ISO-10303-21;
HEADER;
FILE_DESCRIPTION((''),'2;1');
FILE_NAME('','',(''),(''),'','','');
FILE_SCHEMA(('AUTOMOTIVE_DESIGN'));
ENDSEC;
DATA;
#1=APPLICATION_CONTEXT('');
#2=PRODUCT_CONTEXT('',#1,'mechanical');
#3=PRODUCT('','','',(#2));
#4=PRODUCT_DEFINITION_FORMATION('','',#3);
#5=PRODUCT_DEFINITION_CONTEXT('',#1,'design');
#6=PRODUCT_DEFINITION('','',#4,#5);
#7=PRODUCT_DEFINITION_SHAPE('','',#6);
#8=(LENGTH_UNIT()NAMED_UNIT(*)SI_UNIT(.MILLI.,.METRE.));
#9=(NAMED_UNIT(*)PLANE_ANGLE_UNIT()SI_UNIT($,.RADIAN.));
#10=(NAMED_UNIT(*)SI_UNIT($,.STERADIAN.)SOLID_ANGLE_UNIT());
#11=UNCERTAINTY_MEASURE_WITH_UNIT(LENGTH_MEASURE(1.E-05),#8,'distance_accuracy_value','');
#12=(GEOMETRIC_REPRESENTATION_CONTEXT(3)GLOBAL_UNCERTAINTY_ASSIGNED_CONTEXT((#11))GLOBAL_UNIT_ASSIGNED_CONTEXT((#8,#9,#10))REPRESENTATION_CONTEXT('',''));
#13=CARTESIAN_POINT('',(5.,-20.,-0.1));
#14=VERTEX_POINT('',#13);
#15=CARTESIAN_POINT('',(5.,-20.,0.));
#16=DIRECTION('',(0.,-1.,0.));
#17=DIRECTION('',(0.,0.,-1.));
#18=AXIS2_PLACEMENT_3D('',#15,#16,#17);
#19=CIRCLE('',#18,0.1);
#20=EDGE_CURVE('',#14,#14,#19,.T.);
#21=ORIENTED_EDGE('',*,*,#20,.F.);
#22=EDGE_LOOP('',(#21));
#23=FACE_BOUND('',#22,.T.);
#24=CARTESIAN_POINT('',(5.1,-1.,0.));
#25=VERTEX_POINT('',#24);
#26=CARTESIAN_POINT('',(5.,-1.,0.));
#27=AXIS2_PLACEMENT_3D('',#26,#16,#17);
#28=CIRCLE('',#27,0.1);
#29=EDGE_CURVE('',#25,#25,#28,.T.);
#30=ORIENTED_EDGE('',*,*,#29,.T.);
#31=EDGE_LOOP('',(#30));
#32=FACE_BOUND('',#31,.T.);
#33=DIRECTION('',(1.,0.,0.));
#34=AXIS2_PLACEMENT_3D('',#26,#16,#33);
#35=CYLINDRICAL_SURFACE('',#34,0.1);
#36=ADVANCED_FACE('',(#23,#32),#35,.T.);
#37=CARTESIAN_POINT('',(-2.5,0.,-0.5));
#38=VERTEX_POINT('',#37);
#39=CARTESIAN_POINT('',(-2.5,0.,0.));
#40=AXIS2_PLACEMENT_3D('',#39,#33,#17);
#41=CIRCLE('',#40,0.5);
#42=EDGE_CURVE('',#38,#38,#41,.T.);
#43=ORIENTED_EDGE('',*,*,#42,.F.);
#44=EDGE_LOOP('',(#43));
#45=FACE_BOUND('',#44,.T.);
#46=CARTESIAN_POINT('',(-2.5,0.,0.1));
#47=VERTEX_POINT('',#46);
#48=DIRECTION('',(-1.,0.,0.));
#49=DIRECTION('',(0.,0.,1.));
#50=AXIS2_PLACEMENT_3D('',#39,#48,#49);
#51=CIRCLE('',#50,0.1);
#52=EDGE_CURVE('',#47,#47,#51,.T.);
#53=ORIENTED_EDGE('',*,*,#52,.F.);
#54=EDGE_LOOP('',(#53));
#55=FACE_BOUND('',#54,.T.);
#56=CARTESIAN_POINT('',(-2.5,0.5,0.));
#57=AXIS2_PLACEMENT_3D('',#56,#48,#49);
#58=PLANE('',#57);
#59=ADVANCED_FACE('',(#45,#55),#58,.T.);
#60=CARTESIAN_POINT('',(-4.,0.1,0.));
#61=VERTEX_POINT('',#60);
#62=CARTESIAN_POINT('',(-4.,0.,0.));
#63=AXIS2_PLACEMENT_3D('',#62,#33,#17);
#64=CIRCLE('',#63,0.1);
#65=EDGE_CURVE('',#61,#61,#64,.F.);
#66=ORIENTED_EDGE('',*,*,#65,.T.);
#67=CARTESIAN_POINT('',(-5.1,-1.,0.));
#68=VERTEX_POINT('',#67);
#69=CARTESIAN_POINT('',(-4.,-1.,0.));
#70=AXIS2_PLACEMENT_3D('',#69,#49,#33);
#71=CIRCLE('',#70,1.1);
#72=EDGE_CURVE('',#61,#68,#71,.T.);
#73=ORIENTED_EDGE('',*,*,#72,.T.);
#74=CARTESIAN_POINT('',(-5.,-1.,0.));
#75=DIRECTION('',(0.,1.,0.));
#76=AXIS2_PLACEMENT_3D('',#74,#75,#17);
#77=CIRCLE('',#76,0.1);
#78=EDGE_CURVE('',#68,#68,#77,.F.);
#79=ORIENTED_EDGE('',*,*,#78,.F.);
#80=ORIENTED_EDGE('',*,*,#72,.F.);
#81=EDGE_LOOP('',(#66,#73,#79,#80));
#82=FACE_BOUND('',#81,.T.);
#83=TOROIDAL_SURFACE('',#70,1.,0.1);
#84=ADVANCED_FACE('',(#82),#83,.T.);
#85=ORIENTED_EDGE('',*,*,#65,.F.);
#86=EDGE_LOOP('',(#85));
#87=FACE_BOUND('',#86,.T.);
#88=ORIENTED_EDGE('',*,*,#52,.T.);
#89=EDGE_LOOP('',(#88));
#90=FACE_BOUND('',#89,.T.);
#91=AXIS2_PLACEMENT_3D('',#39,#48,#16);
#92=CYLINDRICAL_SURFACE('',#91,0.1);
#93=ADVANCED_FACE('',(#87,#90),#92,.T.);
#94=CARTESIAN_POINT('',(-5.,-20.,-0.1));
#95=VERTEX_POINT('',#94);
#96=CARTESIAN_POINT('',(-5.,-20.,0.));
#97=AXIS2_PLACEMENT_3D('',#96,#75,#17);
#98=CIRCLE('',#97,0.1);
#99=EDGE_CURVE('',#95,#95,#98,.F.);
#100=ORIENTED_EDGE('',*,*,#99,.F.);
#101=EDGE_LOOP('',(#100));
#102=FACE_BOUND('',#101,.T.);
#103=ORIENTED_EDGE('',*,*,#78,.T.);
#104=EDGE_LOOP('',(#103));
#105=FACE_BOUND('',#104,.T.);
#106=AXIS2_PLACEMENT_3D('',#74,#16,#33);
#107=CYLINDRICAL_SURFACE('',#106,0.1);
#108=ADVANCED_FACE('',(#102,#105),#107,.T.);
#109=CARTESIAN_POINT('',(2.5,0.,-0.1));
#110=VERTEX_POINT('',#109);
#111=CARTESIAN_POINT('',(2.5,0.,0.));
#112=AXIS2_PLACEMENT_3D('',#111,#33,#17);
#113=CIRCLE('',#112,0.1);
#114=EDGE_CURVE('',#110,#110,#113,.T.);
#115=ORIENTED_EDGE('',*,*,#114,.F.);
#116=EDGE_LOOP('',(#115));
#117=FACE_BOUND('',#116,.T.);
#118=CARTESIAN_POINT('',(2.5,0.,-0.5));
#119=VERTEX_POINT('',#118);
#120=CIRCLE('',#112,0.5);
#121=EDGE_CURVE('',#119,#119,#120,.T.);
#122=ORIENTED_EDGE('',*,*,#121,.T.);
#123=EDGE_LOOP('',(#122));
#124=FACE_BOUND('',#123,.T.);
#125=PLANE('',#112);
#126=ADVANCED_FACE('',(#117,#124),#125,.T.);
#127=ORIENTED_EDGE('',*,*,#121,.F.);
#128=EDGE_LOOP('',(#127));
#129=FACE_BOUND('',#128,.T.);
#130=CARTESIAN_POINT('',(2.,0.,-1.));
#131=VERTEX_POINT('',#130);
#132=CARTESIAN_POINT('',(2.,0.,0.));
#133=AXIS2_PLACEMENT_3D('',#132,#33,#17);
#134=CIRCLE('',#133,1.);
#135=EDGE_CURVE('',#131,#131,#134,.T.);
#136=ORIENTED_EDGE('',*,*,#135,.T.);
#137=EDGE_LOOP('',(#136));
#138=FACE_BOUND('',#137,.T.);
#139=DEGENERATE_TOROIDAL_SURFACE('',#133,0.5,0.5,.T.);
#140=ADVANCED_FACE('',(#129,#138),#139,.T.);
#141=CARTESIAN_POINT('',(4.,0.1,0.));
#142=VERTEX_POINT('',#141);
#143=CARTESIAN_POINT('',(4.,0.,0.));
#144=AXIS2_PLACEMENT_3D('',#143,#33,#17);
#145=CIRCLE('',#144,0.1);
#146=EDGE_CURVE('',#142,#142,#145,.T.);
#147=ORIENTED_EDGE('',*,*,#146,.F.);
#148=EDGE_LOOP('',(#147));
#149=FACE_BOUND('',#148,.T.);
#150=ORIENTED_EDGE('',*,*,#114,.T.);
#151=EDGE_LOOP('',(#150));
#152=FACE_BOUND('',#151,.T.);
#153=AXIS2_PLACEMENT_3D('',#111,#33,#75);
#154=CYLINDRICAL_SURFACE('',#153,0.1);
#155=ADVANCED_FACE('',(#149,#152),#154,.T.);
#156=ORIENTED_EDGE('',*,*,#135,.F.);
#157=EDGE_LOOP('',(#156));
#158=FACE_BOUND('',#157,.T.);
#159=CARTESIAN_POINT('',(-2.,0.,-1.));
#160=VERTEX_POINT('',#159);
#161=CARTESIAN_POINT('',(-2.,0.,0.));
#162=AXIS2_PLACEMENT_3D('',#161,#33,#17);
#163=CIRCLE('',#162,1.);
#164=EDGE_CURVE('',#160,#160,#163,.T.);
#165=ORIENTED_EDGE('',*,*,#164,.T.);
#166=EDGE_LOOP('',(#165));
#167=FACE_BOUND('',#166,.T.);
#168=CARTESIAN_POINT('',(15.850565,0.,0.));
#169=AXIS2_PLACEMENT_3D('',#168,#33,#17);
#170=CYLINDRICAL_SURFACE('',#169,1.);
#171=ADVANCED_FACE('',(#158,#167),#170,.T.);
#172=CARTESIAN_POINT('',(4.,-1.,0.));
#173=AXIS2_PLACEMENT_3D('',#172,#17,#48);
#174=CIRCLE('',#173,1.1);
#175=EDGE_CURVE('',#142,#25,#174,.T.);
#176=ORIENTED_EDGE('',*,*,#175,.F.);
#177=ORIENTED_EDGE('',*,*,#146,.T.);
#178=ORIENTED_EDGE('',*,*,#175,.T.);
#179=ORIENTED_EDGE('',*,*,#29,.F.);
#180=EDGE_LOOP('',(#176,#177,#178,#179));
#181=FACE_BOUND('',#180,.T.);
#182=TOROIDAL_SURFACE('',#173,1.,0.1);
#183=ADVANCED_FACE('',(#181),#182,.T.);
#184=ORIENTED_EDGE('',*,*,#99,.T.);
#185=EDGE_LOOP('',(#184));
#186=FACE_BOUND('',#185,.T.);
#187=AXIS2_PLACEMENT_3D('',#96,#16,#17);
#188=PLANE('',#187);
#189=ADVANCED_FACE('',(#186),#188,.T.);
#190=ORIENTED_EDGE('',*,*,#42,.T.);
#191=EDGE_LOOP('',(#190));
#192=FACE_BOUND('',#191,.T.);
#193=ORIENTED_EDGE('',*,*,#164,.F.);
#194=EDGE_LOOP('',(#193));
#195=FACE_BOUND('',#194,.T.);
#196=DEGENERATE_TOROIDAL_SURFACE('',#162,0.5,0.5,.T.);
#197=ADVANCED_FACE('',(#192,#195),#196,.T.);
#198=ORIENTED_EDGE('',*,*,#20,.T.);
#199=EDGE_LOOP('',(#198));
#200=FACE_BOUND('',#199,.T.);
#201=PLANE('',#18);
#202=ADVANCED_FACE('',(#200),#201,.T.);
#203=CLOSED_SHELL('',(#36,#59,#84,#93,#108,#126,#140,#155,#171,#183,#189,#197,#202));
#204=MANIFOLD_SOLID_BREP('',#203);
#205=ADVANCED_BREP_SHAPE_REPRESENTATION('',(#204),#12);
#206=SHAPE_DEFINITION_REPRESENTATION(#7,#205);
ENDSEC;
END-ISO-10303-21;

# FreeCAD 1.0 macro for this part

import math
import FreeCAD as App
import Part
import Sketcher
from FreeCAD import Vector
Q = App.Units.Quantity

doc = App.newDocument("Part")
body = doc.addObject("PartDesign::Body", "Body")

sketch1 = doc.addObject("Sketcher::SketchObject", "Sketch")
body.addObject(sketch1)
sketch1.AttachmentSupport = (doc.XY_Plane, [""])
sketch1.MapMode = "FlatFace"
sketch1.addGeometry([
    Part.LineSegment(Vector(2.5, 0, 0), Vector(2.5, 0.5, 0)),
    Part.ArcOfCircle(Part.Circle(Vector(2, 0.5, 0), Vector(0, 0, 1), 0.5), math.radians(0), math.radians(90)),
    Part.LineSegment(Vector(2, 1, 0), Vector(-2, 1, 0)),
    Part.ArcOfCircle(Part.Circle(Vector(-2, 0.5, 0), Vector(0, 0, 1), 0.5), math.radians(90), math.radians(180)),
    Part.LineSegment(Vector(-2.5, 0.5, 0), Vector(-2.5, 0, 0)),
    Part.LineSegment(Vector(-2.5, 0, 0), Vector(2.5, 0, 0)),
], False)
sketch1.addConstraint([
    Sketcher.Constraint("Tangent", 0, 2, 1, 1),
    Sketcher.Constraint("Tangent", 1, 2, 2, 1),
    Sketcher.Constraint("Tangent", 2, 2, 3, 1),
    Sketcher.Constraint("Tangent", 3, 2, 4, 1),
    Sketcher.Constraint("Coincident", 4, 2, 5, 1),
    Sketcher.Constraint("Coincident", 5, 2, 0, 1),
    Sketcher.Constraint("Vertical", 0),
    Sketcher.Constraint("Horizontal", 2),
    Sketcher.Constraint("Vertical", 4),
    Sketcher.Constraint("Horizontal", 5),
    Sketcher.Constraint("Equal", 1, 3),
    Sketcher.Constraint("Symmetric", 4, 2, 5, 2, -1, 1),
    Sketcher.Constraint("Radius", 1, Q("0.5 mm")),
    Sketcher.Constraint("DistanceX", 2, 2, 2, 1, Q("4 mm")),
    Sketcher.Constraint("DistanceY", 0, 1, 0, 2, Q("0.5 mm")),
])
revolution = doc.addObject("PartDesign::Revolution", "Revolution")
body.addObject(revolution)
revolution.Profile = sketch1
revolution.ReferenceAxis = (sketch1, ["H_Axis"])
revolution.Angle = 360

sketch2 = doc.addObject("Sketcher::SketchObject", "Sketch001")
body.addObject(sketch2)
sketch2.AttachmentSupport = (doc.YZ_Plane, [""])
sketch2.MapMode = "FlatFace"
sketch2.AttachmentOffset = App.Placement(Vector(0, 0, 2.5), App.Rotation())
sketch2.addGeometry(Part.Circle(Vector(0, 0, 0), Vector(0, 0, 1), 0.1), False)
sketch2.addConstraint([
    Sketcher.Constraint("Coincident", 0, 3, -1, 1),
    Sketcher.Constraint("Diameter", 0, Q("0.2 mm")),
])

sketch3 = doc.addObject("Sketcher::SketchObject", "Sketch002")
body.addObject(sketch3)
sketch3.AttachmentSupport = (doc.XY_Plane, [""])
sketch3.MapMode = "FlatFace"
sketch3.addGeometry([
    Part.LineSegment(Vector(2.5, 0, 0), Vector(4, 0, 0)),
    Part.ArcOfCircle(Part.Circle(Vector(4, -1, 0), Vector(0, 0, 1), 1), math.radians(0), math.radians(90)),
    Part.LineSegment(Vector(5, -1, 0), Vector(5, -20, 0)),
], False)
sketch3.addConstraint([
    Sketcher.Constraint("Tangent", 0, 2, 1, 2),
    Sketcher.Constraint("Tangent", 1, 1, 2, 1),
    Sketcher.Constraint("Horizontal", 0),
    Sketcher.Constraint("Vertical", 2),
    Sketcher.Constraint("PointOnObject", 0, 1, -1),
    Sketcher.Constraint("Radius", 1, Q("1 mm")),
    Sketcher.Constraint("DistanceY", 2, 2, 2, 1, Q("19 mm")),
    Sketcher.Constraint("DistanceX", 0, 1, 0, 2, Q("1.5 mm")),
    Sketcher.Constraint("DistanceX", -1, 1, 1, 3, Q("4 mm")),
])
doc.recompute()

additivepipe = doc.addObject("PartDesign::AdditivePipe", "AdditivePipe")
body.addObject(additivepipe)
additivepipe.Profile = sketch2
additivepipe.Spine = (sketch3, ["Edge1", "Edge2", "Edge3"])
doc.recompute()

mirrored = doc.addObject("PartDesign::Mirrored", "Mirrored")
body.addObject(mirrored)
mirrored.Originals = [additivepipe]
mirrored.MirrorPlane = (doc.YZ_Plane, [""])
body.Tip = mirrored

doc.recompute()
